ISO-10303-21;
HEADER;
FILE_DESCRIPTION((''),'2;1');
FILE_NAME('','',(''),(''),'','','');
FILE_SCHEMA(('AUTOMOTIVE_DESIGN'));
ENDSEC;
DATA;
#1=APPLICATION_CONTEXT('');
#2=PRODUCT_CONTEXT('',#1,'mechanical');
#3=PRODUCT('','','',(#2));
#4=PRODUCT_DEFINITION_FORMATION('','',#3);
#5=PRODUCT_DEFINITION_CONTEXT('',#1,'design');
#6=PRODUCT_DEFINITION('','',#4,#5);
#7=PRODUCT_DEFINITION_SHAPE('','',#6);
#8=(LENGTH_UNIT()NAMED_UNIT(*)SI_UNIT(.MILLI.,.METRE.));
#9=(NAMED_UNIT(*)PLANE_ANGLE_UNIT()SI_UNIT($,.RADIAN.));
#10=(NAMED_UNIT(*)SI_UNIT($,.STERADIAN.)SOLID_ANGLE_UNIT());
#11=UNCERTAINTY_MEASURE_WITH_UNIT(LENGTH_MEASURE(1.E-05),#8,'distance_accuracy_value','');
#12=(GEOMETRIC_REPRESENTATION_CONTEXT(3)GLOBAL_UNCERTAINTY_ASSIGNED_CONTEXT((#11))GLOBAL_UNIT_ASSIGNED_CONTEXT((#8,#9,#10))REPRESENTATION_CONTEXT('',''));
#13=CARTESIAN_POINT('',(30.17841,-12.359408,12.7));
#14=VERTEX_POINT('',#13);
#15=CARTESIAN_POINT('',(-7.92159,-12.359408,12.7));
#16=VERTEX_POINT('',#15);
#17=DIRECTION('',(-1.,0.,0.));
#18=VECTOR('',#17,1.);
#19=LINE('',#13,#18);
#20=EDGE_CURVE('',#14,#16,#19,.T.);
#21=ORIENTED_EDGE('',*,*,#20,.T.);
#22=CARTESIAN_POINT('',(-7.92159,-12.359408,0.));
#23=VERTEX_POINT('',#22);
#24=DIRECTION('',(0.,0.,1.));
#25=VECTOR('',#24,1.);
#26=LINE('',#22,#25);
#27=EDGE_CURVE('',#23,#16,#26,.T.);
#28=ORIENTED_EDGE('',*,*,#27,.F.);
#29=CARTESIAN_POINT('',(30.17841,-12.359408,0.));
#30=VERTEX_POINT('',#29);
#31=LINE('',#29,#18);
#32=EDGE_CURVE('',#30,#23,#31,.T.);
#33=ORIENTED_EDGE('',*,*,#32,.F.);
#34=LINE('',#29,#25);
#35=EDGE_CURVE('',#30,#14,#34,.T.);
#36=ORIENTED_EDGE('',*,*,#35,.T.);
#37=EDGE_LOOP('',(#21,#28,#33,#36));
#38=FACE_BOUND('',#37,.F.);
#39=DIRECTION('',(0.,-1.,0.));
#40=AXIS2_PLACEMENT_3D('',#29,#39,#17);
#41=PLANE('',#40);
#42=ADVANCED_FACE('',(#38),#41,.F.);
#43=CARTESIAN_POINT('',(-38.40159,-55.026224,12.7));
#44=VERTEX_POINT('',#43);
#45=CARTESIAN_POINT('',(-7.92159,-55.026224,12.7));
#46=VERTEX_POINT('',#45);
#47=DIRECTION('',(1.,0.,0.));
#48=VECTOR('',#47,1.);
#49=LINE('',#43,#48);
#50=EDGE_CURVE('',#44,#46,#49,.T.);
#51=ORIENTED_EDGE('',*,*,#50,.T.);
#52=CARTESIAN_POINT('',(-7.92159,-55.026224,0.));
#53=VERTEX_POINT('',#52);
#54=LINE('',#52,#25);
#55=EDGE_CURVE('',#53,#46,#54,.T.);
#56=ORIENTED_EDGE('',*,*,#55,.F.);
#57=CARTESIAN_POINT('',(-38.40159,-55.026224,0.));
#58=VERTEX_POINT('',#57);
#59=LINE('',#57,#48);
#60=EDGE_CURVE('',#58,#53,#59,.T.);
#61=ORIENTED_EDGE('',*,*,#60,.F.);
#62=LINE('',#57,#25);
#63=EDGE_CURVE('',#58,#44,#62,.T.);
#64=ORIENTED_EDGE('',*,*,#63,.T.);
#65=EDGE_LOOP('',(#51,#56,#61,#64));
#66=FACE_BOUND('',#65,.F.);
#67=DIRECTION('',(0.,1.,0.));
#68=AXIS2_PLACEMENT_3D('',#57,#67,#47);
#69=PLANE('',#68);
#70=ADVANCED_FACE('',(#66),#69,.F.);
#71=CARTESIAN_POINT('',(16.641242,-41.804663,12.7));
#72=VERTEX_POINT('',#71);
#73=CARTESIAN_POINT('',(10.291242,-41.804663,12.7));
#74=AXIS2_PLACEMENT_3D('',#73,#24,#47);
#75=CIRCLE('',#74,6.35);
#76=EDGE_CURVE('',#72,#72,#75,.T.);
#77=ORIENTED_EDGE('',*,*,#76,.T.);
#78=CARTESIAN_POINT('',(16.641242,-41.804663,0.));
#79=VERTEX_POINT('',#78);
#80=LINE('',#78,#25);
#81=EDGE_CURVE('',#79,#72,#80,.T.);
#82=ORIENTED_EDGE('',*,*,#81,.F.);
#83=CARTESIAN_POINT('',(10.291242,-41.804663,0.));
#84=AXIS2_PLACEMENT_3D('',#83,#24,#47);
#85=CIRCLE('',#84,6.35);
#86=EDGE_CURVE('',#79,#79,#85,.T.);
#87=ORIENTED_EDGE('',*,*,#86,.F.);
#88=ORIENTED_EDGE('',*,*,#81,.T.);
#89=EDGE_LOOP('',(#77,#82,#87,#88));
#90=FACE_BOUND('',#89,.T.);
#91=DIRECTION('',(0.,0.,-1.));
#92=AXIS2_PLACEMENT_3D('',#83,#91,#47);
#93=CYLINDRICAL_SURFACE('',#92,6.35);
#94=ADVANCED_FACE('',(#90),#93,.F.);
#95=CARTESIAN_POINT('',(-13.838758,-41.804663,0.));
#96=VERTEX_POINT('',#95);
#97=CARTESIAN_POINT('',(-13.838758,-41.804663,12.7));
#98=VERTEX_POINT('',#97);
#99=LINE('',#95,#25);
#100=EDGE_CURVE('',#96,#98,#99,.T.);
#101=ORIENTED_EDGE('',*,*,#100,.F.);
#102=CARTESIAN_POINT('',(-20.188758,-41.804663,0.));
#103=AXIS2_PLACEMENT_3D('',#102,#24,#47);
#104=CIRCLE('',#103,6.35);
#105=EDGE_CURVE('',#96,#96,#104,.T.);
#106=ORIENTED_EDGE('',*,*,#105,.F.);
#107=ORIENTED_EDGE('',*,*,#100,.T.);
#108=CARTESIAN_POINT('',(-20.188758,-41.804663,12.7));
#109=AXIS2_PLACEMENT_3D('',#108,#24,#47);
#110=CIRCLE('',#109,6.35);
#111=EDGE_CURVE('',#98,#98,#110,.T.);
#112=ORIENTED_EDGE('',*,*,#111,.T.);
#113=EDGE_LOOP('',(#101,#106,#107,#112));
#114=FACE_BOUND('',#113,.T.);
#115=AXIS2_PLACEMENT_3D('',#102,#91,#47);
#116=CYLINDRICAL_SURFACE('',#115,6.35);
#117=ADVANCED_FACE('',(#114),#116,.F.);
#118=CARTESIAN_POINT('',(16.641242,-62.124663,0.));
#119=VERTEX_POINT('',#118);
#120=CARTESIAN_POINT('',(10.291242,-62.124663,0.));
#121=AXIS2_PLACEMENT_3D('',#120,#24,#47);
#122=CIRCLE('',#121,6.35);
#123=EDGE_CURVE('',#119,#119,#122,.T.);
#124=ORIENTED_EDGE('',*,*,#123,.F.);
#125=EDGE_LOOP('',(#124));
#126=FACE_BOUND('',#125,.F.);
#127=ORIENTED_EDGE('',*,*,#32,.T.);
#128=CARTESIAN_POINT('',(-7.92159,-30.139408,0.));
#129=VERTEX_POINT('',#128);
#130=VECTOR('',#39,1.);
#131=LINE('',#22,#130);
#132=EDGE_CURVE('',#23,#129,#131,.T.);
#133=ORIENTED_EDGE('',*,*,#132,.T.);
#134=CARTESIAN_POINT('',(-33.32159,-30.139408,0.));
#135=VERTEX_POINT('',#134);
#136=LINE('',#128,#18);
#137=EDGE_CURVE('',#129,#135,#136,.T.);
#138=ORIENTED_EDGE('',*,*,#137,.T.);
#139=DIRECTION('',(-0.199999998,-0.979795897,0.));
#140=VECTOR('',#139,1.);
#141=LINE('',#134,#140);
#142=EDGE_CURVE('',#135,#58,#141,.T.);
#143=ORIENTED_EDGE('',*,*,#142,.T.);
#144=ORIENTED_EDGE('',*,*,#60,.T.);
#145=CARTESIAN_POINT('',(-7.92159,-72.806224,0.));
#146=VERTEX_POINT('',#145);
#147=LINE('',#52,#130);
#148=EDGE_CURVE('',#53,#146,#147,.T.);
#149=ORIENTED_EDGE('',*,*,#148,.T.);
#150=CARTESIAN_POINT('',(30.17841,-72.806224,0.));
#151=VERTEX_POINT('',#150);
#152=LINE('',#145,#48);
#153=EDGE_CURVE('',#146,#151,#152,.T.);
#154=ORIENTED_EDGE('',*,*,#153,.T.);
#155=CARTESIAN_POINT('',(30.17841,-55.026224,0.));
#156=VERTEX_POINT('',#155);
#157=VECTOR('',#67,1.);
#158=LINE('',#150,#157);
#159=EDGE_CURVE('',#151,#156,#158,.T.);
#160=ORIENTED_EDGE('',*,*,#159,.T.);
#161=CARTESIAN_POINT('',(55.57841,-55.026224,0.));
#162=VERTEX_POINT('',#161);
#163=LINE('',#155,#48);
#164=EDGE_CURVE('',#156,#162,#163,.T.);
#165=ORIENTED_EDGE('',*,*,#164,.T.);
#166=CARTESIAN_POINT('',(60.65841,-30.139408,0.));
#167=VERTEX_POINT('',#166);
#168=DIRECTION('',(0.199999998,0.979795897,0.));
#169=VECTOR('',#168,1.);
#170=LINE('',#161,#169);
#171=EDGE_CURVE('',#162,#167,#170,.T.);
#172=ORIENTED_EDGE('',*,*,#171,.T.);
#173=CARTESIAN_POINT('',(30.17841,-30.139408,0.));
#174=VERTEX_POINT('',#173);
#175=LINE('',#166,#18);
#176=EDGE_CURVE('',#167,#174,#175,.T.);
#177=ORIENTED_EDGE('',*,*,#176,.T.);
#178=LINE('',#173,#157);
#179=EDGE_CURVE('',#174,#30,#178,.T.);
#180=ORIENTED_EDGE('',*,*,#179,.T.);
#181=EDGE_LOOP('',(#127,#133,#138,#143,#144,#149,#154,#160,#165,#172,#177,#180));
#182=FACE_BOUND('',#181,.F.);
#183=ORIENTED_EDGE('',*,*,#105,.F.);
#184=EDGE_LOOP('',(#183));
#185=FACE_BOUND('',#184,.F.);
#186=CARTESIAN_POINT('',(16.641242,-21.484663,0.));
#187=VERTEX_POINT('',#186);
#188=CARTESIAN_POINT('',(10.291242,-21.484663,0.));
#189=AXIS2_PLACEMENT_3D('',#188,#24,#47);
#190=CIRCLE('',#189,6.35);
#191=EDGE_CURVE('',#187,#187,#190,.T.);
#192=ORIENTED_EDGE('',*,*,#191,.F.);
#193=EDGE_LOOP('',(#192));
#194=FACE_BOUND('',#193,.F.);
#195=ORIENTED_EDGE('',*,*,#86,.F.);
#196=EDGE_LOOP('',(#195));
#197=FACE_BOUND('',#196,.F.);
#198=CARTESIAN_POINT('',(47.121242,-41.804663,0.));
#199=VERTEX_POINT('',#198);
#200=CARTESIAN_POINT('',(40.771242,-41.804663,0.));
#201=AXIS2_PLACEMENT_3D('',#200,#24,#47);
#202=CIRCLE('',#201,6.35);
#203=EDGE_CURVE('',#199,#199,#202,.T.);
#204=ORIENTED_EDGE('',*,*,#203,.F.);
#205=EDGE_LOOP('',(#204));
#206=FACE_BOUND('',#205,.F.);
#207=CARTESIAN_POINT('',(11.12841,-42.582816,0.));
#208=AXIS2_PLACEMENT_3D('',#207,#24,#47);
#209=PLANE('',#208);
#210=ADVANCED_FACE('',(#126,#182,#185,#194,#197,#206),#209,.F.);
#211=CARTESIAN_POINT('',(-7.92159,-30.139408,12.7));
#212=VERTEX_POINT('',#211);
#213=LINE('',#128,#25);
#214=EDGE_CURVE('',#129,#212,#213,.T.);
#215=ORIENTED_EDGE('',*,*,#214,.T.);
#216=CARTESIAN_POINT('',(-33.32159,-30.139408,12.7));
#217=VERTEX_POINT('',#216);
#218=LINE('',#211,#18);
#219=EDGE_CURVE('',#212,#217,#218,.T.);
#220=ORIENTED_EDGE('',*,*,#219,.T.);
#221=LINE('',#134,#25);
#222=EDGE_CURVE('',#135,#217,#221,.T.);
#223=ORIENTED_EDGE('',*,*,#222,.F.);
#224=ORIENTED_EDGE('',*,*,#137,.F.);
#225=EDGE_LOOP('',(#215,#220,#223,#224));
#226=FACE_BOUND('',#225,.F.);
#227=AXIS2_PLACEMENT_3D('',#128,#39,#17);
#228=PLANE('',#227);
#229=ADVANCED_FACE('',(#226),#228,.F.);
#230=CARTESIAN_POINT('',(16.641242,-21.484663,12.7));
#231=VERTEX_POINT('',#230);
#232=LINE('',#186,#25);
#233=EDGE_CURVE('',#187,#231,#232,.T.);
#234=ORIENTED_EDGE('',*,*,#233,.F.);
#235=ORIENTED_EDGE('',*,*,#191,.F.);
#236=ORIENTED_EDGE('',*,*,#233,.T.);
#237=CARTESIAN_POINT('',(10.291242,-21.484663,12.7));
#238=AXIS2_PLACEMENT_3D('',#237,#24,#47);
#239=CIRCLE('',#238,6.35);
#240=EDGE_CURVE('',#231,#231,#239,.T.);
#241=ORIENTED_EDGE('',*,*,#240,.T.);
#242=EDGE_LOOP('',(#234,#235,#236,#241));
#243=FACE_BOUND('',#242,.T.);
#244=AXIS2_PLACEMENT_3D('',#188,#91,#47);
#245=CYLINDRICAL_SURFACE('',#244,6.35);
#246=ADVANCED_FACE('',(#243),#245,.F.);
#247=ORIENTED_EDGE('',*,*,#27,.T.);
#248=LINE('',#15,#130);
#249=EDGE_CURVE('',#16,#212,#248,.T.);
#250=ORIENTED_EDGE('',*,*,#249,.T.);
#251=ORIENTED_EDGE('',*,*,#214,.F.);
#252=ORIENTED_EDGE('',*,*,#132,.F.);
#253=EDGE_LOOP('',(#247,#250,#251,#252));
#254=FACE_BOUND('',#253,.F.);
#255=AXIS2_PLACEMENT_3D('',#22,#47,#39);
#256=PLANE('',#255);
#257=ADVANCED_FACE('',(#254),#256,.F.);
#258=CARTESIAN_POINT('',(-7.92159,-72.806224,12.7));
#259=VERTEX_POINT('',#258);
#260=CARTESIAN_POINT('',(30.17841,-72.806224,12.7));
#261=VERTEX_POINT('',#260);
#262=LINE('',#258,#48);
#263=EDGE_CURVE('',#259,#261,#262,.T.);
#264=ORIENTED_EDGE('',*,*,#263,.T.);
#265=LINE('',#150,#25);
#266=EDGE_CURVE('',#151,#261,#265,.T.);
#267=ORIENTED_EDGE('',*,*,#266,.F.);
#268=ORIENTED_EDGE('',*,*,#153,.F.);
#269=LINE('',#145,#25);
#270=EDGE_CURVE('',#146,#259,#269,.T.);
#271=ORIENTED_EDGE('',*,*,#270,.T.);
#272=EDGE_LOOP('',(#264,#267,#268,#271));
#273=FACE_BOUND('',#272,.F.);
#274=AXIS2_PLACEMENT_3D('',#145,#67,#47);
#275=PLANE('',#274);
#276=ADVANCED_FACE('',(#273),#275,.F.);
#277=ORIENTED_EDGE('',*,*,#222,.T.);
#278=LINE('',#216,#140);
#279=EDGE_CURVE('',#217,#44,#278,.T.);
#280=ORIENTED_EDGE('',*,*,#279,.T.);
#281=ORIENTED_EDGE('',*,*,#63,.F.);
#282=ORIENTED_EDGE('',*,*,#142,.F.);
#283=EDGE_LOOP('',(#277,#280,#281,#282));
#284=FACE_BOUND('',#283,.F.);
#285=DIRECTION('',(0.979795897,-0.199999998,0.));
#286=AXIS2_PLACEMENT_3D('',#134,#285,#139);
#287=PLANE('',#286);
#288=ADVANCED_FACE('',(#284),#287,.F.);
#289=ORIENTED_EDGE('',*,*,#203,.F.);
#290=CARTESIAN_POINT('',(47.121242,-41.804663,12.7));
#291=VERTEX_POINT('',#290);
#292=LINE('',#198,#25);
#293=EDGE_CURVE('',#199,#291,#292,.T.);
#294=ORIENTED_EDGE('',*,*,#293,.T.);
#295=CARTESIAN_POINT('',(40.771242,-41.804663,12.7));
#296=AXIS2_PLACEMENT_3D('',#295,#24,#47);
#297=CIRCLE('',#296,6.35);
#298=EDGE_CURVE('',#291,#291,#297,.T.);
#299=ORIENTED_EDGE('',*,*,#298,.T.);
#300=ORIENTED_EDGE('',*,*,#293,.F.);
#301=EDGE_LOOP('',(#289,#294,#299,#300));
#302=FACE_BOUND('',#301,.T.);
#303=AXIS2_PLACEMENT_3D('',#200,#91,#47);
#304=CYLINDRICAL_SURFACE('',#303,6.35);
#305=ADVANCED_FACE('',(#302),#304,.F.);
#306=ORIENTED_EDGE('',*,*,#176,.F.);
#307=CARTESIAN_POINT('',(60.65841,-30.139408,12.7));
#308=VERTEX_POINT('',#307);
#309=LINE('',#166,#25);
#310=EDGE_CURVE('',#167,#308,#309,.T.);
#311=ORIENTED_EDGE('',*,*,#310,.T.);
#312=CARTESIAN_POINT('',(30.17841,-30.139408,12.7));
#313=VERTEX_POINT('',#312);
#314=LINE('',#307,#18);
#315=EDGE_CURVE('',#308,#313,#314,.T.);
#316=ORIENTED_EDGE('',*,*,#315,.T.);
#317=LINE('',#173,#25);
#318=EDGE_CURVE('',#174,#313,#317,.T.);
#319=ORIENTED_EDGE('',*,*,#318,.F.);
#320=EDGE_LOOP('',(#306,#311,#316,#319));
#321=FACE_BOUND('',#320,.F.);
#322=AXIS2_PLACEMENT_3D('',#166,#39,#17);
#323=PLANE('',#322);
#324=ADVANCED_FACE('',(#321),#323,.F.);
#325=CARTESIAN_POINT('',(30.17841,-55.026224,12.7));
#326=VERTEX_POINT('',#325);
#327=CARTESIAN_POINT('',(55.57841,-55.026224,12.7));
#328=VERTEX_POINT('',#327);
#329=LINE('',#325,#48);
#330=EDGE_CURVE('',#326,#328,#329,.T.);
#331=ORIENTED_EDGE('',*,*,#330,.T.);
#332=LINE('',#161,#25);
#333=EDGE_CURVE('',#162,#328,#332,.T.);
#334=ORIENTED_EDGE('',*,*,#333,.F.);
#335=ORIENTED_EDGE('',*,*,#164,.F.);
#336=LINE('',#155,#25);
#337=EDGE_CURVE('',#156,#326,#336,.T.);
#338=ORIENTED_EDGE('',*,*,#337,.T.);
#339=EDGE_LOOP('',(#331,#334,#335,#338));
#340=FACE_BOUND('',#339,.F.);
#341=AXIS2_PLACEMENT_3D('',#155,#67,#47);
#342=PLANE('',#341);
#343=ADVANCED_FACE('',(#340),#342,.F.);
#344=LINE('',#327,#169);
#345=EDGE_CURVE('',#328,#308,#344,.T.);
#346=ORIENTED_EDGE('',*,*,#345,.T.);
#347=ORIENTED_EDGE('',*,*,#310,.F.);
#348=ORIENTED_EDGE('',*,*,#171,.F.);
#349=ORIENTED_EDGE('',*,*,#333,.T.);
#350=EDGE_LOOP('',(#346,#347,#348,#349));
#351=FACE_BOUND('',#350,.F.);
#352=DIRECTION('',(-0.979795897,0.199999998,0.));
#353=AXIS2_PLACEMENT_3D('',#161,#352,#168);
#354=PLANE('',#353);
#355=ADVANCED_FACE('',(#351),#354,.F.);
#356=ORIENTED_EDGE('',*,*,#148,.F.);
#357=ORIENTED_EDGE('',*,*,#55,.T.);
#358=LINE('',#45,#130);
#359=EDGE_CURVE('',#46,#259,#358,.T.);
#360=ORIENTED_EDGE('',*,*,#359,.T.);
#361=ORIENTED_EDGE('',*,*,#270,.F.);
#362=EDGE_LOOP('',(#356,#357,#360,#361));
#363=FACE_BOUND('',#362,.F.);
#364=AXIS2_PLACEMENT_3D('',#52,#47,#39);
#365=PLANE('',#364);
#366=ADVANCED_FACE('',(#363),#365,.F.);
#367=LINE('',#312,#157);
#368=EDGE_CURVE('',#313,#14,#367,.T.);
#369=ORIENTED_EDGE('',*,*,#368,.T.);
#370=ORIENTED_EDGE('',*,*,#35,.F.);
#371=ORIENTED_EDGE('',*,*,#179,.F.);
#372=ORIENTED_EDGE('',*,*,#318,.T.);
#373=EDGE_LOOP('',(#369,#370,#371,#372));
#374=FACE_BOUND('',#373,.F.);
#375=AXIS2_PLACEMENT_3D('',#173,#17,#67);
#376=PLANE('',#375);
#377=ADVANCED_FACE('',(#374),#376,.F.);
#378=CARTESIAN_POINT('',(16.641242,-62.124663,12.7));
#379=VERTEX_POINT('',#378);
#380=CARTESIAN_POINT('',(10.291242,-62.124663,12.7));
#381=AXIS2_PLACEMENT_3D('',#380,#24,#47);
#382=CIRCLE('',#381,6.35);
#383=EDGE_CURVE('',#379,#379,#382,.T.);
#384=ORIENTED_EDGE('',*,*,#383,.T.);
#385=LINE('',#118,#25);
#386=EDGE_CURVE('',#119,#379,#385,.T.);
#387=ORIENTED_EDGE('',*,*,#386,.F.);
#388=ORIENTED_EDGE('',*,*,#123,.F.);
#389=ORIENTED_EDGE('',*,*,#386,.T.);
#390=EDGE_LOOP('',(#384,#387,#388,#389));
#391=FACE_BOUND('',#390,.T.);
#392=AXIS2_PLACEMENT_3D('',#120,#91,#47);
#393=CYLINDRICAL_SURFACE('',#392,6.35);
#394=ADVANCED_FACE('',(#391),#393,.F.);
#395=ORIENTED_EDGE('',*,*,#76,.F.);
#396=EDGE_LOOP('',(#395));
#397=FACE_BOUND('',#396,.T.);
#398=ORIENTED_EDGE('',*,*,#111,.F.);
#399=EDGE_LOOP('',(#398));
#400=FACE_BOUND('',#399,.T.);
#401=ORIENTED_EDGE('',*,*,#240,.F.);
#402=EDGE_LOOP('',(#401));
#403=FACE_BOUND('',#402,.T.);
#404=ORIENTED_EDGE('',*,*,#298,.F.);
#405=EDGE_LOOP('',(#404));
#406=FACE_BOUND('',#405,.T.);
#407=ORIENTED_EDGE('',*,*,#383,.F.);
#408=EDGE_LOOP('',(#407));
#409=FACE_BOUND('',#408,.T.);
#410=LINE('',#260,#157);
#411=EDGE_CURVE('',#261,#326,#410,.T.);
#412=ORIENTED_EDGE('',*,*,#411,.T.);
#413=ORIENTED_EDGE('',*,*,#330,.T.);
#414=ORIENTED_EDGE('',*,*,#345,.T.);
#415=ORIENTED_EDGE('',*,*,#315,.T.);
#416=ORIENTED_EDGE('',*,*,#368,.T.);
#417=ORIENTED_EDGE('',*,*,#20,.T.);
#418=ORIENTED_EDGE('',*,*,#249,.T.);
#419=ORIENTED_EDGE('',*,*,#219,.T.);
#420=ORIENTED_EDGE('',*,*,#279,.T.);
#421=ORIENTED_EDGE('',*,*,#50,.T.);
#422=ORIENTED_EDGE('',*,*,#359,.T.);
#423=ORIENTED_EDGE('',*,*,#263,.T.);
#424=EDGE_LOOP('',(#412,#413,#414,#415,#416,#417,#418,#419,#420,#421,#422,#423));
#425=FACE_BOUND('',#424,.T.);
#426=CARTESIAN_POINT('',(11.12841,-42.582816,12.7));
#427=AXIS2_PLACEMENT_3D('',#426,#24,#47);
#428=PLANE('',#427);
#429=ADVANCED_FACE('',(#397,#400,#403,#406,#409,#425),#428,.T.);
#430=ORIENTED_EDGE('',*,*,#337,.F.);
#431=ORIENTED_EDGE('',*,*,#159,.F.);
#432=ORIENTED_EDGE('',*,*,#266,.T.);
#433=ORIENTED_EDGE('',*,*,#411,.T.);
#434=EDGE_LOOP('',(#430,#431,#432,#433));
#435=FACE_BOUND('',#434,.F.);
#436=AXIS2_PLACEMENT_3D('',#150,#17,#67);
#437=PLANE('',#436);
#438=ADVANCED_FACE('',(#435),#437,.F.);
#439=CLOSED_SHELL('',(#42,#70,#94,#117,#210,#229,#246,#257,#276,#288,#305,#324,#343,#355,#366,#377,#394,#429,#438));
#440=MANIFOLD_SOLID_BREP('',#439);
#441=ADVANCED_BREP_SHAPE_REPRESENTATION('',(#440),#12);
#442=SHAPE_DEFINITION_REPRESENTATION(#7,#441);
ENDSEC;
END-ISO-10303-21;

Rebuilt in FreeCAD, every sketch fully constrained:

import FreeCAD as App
import Part
import Sketcher
Q = App.Units.Quantity

doc = App.newDocument("Part")
params = doc.addObject("Spreadsheet::Sheet", "Params")
for row, (alias, value) in enumerate([
    ("sketch1_diameter", "0.5 in"),
    ("sketch1_width", "1 in"),
    ("sketch1_length", "1 in"),
    ("sketch1_width2", "1.2 in"),
    ("sketch1_width3", "1.5 in"),
    ("pad1_length", "0.5 in"),
], start=1):
    params.set(f"A{row}", alias)
    params.set(f"B{row}", "=" + value)
    params.setAlias(f"B{row}", alias)

body = doc.addObject("PartDesign::Body", "Body")

sketch1 = body.newObject("Sketcher::SketchObject", "Sketch")
sketch1.AttachmentSupport = (doc.getObject("XY_Plane"), [""])
sketch1.MapMode = "FlatFace"
sketch1.addGeometry([
    Part.LineSegment(App.Vector(-7.92159, -12.359408, 0), App.Vector(-7.92159, -30.139408, 0)),
    Part.LineSegment(App.Vector(-7.92159, -30.139408, 0), App.Vector(-33.32159, -30.139408, 0)),
    Part.LineSegment(App.Vector(-33.32159, -30.139408, 0), App.Vector(-38.40159, -55.026224, 0)),
    Part.LineSegment(App.Vector(-38.40159, -55.026224, 0), App.Vector(-7.92159, -55.026224, 0)),
    Part.LineSegment(App.Vector(-7.92159, -55.026224, 0), App.Vector(-7.92159, -72.806224, 0)),
    Part.LineSegment(App.Vector(-7.92159, -72.806224, 0), App.Vector(30.17841, -72.806224, 0)),
    Part.LineSegment(App.Vector(30.17841, -72.806224, 0), App.Vector(30.17841, -55.026224, 0)),
    Part.LineSegment(App.Vector(30.17841, -55.026224, 0), App.Vector(55.57841, -55.026224, 0)),
    Part.LineSegment(App.Vector(55.57841, -55.026224, 0), App.Vector(60.65841, -30.139408, 0)),
    Part.LineSegment(App.Vector(60.65841, -30.139408, 0), App.Vector(30.17841, -30.139408, 0)),
    Part.LineSegment(App.Vector(30.17841, -30.139408, 0), App.Vector(30.17841, -12.359408, 0)),
    Part.LineSegment(App.Vector(30.17841, -12.359408, 0), App.Vector(-7.92159, -12.359408, 0)),
    Part.Circle(App.Vector(10.291242, -62.124663, 0), App.Vector(0, 0, 1), 6.35),
    Part.Circle(App.Vector(-20.188758, -41.804663, 0), App.Vector(0, 0, 1), 6.35),
    Part.Circle(App.Vector(10.291242, -41.804663, 0), App.Vector(0, 0, 1), 6.35),
    Part.Circle(App.Vector(10.291242, -21.484663, 0), App.Vector(0, 0, 1), 6.35),
    Part.Circle(App.Vector(40.771242, -41.804663, 0), App.Vector(0, 0, 1), 6.35),
], False)
sketch1.addConstraint([
    Sketcher.Constraint("Coincident", 0, 2, 1, 1),
    Sketcher.Constraint("Coincident", 1, 2, 2, 1),
    Sketcher.Constraint("Coincident", 2, 2, 3, 1),
    Sketcher.Constraint("Coincident", 3, 2, 4, 1),
    Sketcher.Constraint("Coincident", 4, 2, 5, 1),
    Sketcher.Constraint("Coincident", 5, 2, 6, 1),
    Sketcher.Constraint("Coincident", 6, 2, 7, 1),
    Sketcher.Constraint("Coincident", 7, 2, 8, 1),
    Sketcher.Constraint("Coincident", 8, 2, 9, 1),
    Sketcher.Constraint("Coincident", 9, 2, 10, 1),
    Sketcher.Constraint("Coincident", 10, 2, 11, 1),
    Sketcher.Constraint("Coincident", 11, 2, 0, 1),
    Sketcher.Constraint("Vertical", 0),
    Sketcher.Constraint("Horizontal", 1),
    Sketcher.Constraint("Horizontal", 3),
    Sketcher.Constraint("Vertical", 4),
    Sketcher.Constraint("Horizontal", 5),
    Sketcher.Constraint("Vertical", 6),
    Sketcher.Constraint("Horizontal", 7),
    Sketcher.Constraint("Horizontal", 9),
    Sketcher.Constraint("Vertical", 10),
    Sketcher.Constraint("Horizontal", 11),
    Sketcher.Constraint("Equal", 12, 13),
    Sketcher.Constraint("Equal", 13, 14),
    Sketcher.Constraint("Equal", 14, 15),
    Sketcher.Constraint("Equal", 15, 16),
    Sketcher.Constraint("Parallel", 2, 8),
    Sketcher.Constraint("Horizontal", 13, 3, 14, 3),
    Sketcher.Constraint("Horizontal", 14, 3, 16, 3),
    Sketcher.Constraint("Horizontal", 3, 2, 6, 2),
    Sketcher.Constraint("Horizontal", 1, 2, 8, 2),
    Sketcher.Constraint("Vertical", 12, 3, 14, 3),
    Sketcher.Constraint("Vertical", 14, 3, 15, 3),
    Sketcher.Constraint("Vertical", 0, 2, 3, 2),
    Sketcher.Constraint("Vertical", 6, 2, 9, 2),
    Sketcher.Constraint("Equal", 1, 7),
    Sketcher.Constraint("Equal", 0, 4),
    Sketcher.Constraint("Diameter", 12, Q("0.5 in")),
    Sketcher.Constraint("DistanceX", 1, 2, 1, 1, Q("1 in")),
    Sketcher.Constraint("Distance", 2, Q("1 in")),
    Sketcher.Constraint("DistanceX", 3, 1, 3, 2, Q("1.2 in")),
    Sketcher.Constraint("DistanceX", 5, 1, 5, 2, Q("1.5 in")),
    Sketcher.Constraint("DistanceY", 0, 2, 0, 1, Q("0.7 in")),
    Sketcher.Constraint("DistanceX", 13, 3, 12, 3, Q("1.2 in")),
    Sketcher.Constraint("DistanceY", 12, 3, 13, 3, Q("0.8 in")),
    Sketcher.Constraint("DistanceY", 14, 3, 15, 3, Q("0.8 in")),
    Sketcher.Constraint("DistanceX", 14, 3, 16, 3, Q("1.2 in")),
    Sketcher.Constraint("DistanceX", 13, 3, -1, 1, Q("20.188758 mm")),
    Sketcher.Constraint("DistanceX", 0, 2, -1, 1, Q("7.92159 mm")),
    Sketcher.Constraint("DistanceY", 2, 2, 13, 3, Q("13.221561 mm")),
    Sketcher.Constraint("DistanceY", 12, 3, -1, 1, Q("62.124663 mm")),
])
sketch1.setExpression("Constraints[37]", "Params.sketch1_diameter")
sketch1.setExpression("Constraints[38]", "Params.sketch1_width")
sketch1.setExpression("Constraints[39]", "Params.sketch1_length")
sketch1.setExpression("Constraints[40]", "Params.sketch1_width2")
sketch1.setExpression("Constraints[41]", "Params.sketch1_width3")
pad1 = body.newObject("PartDesign::Pad", "Pad")
pad1.Profile = sketch1
pad1.setExpression("Length", "Params.pad1_length")

doc.recompute()
